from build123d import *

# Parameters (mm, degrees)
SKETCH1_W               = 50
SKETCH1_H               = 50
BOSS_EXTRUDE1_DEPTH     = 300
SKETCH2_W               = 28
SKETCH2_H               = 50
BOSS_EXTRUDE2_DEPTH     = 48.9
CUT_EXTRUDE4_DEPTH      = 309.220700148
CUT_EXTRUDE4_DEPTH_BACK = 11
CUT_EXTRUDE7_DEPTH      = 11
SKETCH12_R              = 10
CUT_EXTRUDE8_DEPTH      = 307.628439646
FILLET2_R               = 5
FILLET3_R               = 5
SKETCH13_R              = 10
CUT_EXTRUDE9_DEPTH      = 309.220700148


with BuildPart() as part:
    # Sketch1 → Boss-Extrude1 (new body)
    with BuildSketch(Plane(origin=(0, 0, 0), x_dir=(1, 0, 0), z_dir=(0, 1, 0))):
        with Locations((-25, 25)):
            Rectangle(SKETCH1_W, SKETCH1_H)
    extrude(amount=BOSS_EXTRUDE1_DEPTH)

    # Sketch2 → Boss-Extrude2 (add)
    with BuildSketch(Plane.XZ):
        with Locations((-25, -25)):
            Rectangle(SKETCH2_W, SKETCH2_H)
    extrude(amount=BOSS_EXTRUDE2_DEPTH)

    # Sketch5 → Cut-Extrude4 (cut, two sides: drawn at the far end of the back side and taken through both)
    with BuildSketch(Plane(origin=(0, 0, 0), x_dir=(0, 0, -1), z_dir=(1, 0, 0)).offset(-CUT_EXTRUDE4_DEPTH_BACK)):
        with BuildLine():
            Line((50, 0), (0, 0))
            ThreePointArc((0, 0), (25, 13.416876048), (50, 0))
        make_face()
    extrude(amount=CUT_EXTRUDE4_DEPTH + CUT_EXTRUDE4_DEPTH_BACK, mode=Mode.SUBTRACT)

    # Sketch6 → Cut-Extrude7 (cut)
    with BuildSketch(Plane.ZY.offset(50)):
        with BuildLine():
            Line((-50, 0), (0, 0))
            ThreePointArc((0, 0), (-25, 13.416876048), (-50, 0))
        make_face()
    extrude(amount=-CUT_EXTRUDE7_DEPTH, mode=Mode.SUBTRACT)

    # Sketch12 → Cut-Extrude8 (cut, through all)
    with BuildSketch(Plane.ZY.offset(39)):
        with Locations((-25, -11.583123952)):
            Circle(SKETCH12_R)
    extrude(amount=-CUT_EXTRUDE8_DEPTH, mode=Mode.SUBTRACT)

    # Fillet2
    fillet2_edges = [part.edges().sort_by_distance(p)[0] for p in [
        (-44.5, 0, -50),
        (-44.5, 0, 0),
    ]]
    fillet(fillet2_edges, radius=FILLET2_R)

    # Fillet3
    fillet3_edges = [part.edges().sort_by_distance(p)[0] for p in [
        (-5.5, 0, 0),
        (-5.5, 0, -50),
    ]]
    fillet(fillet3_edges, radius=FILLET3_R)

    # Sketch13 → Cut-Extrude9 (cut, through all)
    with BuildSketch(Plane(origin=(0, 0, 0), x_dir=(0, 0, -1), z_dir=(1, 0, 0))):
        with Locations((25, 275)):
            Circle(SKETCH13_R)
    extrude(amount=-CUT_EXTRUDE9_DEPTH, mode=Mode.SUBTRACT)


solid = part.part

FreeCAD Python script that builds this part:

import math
import FreeCAD as App
import Part
import Sketcher
from FreeCAD import Vector
Q = App.Units.Quantity


def edges_at(feature, points):
    """Names of the edges that pass closest to the given points."""
    edges = feature.Shape.Edges
    near = lambda p: min(range(len(edges)), key=lambda i: edges[i].distToShape(Part.Vertex(*p))[0])
    return sorted({f"Edge{near(p) + 1}" for p in points})

doc = App.newDocument("Part")
params = doc.addObject("Spreadsheet::Sheet", "Params")
for row, (alias, value) in enumerate([
    ("sketch1_width", "50 mm"),
    ("pad1_length", "300 mm"),
    ("sketch2_width", "28 mm"),
    ("sketch2_height", "50 mm"),
    ("pad2_length", "48.9 mm"),
    ("sketch3_radius", "30 mm"),
    ("sketch3_height", "50 mm"),
    ("pocket1_length", "309.2207 mm"),
    ("pocket1_length2", "11 mm"),
    ("sketch4_radius", "30 mm"),
    ("sketch4_height", "50 mm"),
    ("pocket2_length", "11 mm"),
    ("sketch5_diameter", "20 mm"),
    ("fillet_radius", "5 mm"),
    ("fillet2_radius", "5 mm"),
    ("sketch6_diameter", "20 mm"),
], start=1):
    params.set(f"A{row}", alias)
    params.set(f"B{row}", "=" + value)
    params.setAlias(f"B{row}", alias)

body = doc.addObject("PartDesign::Body", "Body")

# Sketch on XZ plane
sketch1 = doc.addObject("Sketcher::SketchObject", "Sketch")
body.addObject(sketch1)
sketch1.AttachmentSupport = (doc.XZ_Plane, [""])
sketch1.MapMode = "FlatFace"
sketch1.addGeometry([
    Part.LineSegment(Vector(-50, -50, 0), Vector(-50, 0, 0)),
    Part.LineSegment(Vector(-50, 0, 0), Vector(0, 0, 0)),
    Part.LineSegment(Vector(0, 0, 0), Vector(0, -50, 0)),
    Part.LineSegment(Vector(0, -50, 0), Vector(-50, -50, 0)),
], False)
sketch1.addConstraint([
    Sketcher.Constraint("Coincident", 0, 2, 1, 1),
    Sketcher.Constraint("Coincident", 1, 2, 2, 1),
    Sketcher.Constraint("Coincident", 2, 2, 3, 1),
    Sketcher.Constraint("Coincident", 3, 2, 0, 1),
    Sketcher.Constraint("Vertical", 0),
    Sketcher.Constraint("Horizontal", 1),
    Sketcher.Constraint("Vertical", 2),
    Sketcher.Constraint("Horizontal", 3),
    Sketcher.Constraint("Coincident", 1, 2, -1, 1),
    Sketcher.Constraint("Equal", 3, 0),
    Sketcher.Constraint("DistanceX", 1, 1, 1, 2, Q("50 mm")),
])
sketch1.setExpression("Constraints[10]", "Params.sketch1_width")
pad1 = doc.addObject("PartDesign::Pad", "Pad")
body.addObject(pad1)
pad1.Profile = sketch1
pad1.setExpression("Length", "Params.pad1_length")
pad1.Reversed = True

# Sketch on XZ plane
sketch2 = doc.addObject("Sketcher::SketchObject", "Sketch001")
body.addObject(sketch2)
sketch2.AttachmentSupport = (doc.XZ_Plane, [""])
sketch2.MapMode = "FlatFace"
sketch2.addGeometry([
    Part.LineSegment(Vector(-39, 0, 0), Vector(-39, -50, 0)),
    Part.LineSegment(Vector(-39, -50, 0), Vector(-11, -50, 0)),
    Part.LineSegment(Vector(-11, -50, 0), Vector(-11, 0, 0)),
    Part.LineSegment(Vector(-11, 0, 0), Vector(-39, 0, 0)),
], False)
sketch2.addConstraint([
    Sketcher.Constraint("Coincident", 0, 2, 1, 1),
    Sketcher.Constraint("Coincident", 1, 2, 2, 1),
    Sketcher.Constraint("Coincident", 2, 2, 3, 1),
    Sketcher.Constraint("Coincident", 3, 2, 0, 1),
    Sketcher.Constraint("Vertical", 0),
    Sketcher.Constraint("Horizontal", 1),
    Sketcher.Constraint("Vertical", 2),
    Sketcher.Constraint("Horizontal", 3),
    Sketcher.Constraint("PointOnObject", 2, 2, -1),
    Sketcher.Constraint("DistanceX", 1, 1, 1, 2, Q("28 mm")),
    Sketcher.Constraint("DistanceY", 0, 2, 0, 1, Q("50 mm")),
    Sketcher.Constraint("DistanceX", 0, 2, -1, 1, Q("39 mm")),
])
sketch2.setExpression("Constraints[9]", "Params.sketch2_width")
sketch2.setExpression("Constraints[10]", "Params.sketch2_height")
pad2 = doc.addObject("PartDesign::Pad", "Pad001")
body.addObject(pad2)
pad2.Profile = sketch2
pad2.setExpression("Length", "Params.pad2_length")

# Sketch on YZ plane
sketch3 = doc.addObject("Sketcher::SketchObject", "Sketch002")
body.addObject(sketch3)
sketch3.AttachmentSupport = (doc.YZ_Plane, [""])
sketch3.MapMode = "FlatFace"
sketch3.addGeometry([
    Part.LineSegment(Vector(0, 0, 0), Vector(0, -50, 0)),
    Part.ArcOfCircle(Part.Circle(Vector(-17, -25, 0), Vector(0, 0, 1), 30), math.radians(-56), math.radians(56)),
], False)
sketch3.addConstraint([
    Sketcher.Constraint("Coincident", 0, 1, 1, 2),
    Sketcher.Constraint("Coincident", 1, 1, 0, 2),
    Sketcher.Constraint("Vertical", 0),
    Sketcher.Constraint("Coincident", 0, 1, -1, 1),
    Sketcher.Constraint("Radius", 1, Q("30 mm")),
    Sketcher.Constraint("DistanceY", 0, 2, 0, 1, Q("50 mm")),
])
sketch3.setExpression("Constraints[4]", "Params.sketch3_radius")
sketch3.setExpression("Constraints[5]", "Params.sketch3_height")
pocket1 = doc.addObject("PartDesign::Pocket", "Pocket")
body.addObject(pocket1)
pocket1.Profile = sketch3
pocket1.Type = "TwoLengths"
pocket1.setExpression("Length", "Params.pocket1_length")
pocket1.setExpression("Length2", "Params.pocket1_length2")
pocket1.Reversed = True

# Sketch on YZ plane
sketch4 = doc.addObject("Sketcher::SketchObject", "Sketch003")
body.addObject(sketch4)
sketch4.AttachmentSupport = (doc.YZ_Plane, [""])
sketch4.MapMode = "FlatFace"
sketch4.AttachmentOffset = App.Placement(Vector(0, 0, -50), App.Rotation())
sketch4.addGeometry([
    Part.LineSegment(Vector(0, -50, 0), Vector(0, 0, 0)),
    Part.ArcOfCircle(Part.Circle(Vector(-17, -25, 0), Vector(0, 0, 1), 30), math.radians(-56), math.radians(56)),
], False)
sketch4.addConstraint([
    Sketcher.Constraint("Coincident", 0, 1, 1, 1),
    Sketcher.Constraint("Coincident", 1, 2, 0, 2),
    Sketcher.Constraint("Vertical", 0),
    Sketcher.Constraint("Coincident", 1, 2, -1, 1),
    Sketcher.Constraint("Radius", 1, Q("30 mm")),
    Sketcher.Constraint("DistanceY", 0, 1, 0, 2, Q("50 mm")),
])
sketch4.setExpression("Constraints[4]", "Params.sketch4_radius")
sketch4.setExpression("Constraints[5]", "Params.sketch4_height")
pocket2 = doc.addObject("PartDesign::Pocket", "Pocket001")
body.addObject(pocket2)
pocket2.Profile = sketch4
pocket2.setExpression("Length", "Params.pocket2_length")
pocket2.Reversed = True

# Sketch on YZ plane
sketch5 = doc.addObject("Sketcher::SketchObject", "Sketch004")
body.addObject(sketch5)
sketch5.AttachmentSupport = (doc.YZ_Plane, [""])
sketch5.MapMode = "FlatFace"
sketch5.AttachmentOffset = App.Placement(Vector(0, 0, -39), App.Rotation())
sketch5.addGeometry(Part.Circle(Vector(-12, -25, 0), Vector(0, 0, 1), 10), False)
sketch5.addConstraint([
    Sketcher.Constraint("Diameter", 0, Q("20 mm")),
    Sketcher.Constraint("DistanceY", 0, 3, -1, 1, Q("25 mm")),
    Sketcher.Constraint("DistanceX", 0, 3, -1, 1, Q("11.583124 mm")),
])
sketch5.setExpression("Constraints[0]", "Params.sketch5_diameter")
pocket3 = doc.addObject("PartDesign::Pocket", "Pocket002")
body.addObject(pocket3)
pocket3.Profile = sketch5
pocket3.Type = "ThroughAll"
pocket3.Reversed = True
doc.recompute()

fillet = doc.addObject("PartDesign::Fillet", "Fillet")
body.addObject(fillet)
fillet.Base = (pocket3, edges_at(pocket3, [(-44.5, 0, -50), (-44.5, 0, 0)]))
fillet.setExpression("Radius", "Params.fillet_radius")
doc.recompute()

fillet2 = doc.addObject("PartDesign::Fillet", "Fillet001")
body.addObject(fillet2)
fillet2.Base = (fillet, edges_at(fillet, [(-5.5, 0, 0), (-5.5, 0, -50)]))
fillet2.setExpression("Radius", "Params.fillet2_radius")

# Sketch on YZ plane
sketch6 = doc.addObject("Sketcher::SketchObject", "Sketch005")
body.addObject(sketch6)
sketch6.AttachmentSupport = (doc.YZ_Plane, [""])
sketch6.MapMode = "FlatFace"
sketch6.addGeometry(Part.Circle(Vector(275, -25, 0), Vector(0, 0, 1), 10), False)
sketch6.addConstraint([
    Sketcher.Constraint("Diameter", 0, Q("20 mm")),
    Sketcher.Constraint("DistanceX", -1, 1, 0, 3, Q("275 mm")),
    Sketcher.Constraint("DistanceY", 0, 3, -1, 1, Q("25 mm")),
])
sketch6.setExpression("Constraints[0]", "Params.sketch6_diameter")
pocket4 = doc.addObject("PartDesign::Pocket", "Pocket003")
body.addObject(pocket4)
pocket4.Profile = sketch6
pocket4.Type = "ThroughAll"

doc.recompute()
